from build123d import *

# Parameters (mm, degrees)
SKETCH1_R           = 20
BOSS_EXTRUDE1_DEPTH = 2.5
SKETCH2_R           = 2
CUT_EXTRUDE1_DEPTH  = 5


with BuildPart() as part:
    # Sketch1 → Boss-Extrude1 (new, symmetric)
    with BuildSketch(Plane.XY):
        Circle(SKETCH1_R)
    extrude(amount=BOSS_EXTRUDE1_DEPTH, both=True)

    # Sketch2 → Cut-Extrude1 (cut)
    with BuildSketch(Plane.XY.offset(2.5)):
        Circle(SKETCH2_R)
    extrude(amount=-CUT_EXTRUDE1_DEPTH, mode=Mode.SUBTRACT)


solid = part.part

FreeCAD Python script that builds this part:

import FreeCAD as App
import Part
import Sketcher
from FreeCAD import Vector

doc = App.newDocument("Part")
params = doc.addObject("Spreadsheet::Sheet", "Params")
for row, (alias, value) in enumerate([
    ("sketch1_diameter", "40 mm"),
    ("pad1_length", "5 mm"),
    ("sketch2_diameter", "4 mm"),
    ("pocket1_length", "5 mm"),
], start=1):
    params.set(f"A{row}", alias)
    params.set(f"B{row}", "=" + value)
    params.setAlias(f"B{row}", alias)

body = doc.addObject("PartDesign::Body", "Body")

# Sketch on XY plane
sketch1 = body.newObject("Sketcher::SketchObject", "Sketch")
sketch1.AttachmentSupport = (doc.getObject("XY_Plane"), [""])
sketch1.MapMode = "FlatFace"
sketch1.addGeometry(Part.Circle(Vector(0, 0, 0), Vector(0, 0, 1), 20), False)
sketch1.addConstraint([
    Sketcher.Constraint("Coincident", 0, 3, -1, 1),
    Sketcher.Constraint("Diameter", 0, 40.0),
])
sketch1.setExpression("Constraints[1]", "Params.sketch1_diameter")
pad1 = body.newObject("PartDesign::Pad", "Pad")
pad1.Profile = sketch1
pad1.setExpression("Length", "Params.pad1_length")
pad1.Midplane = True

# Sketch on XY plane
sketch2 = body.newObject("Sketcher::SketchObject", "Sketch001")
sketch2.AttachmentSupport = (doc.getObject("XY_Plane"), [""])
sketch2.MapMode = "FlatFace"
sketch2.AttachmentOffset = App.Placement(Vector(0, 0, 2.5), App.Rotation())
sketch2.addGeometry(Part.Circle(Vector(0, 0, 0), Vector(0, 0, 1), 2), False)
sketch2.addConstraint([
    Sketcher.Constraint("Coincident", 0, 3, -1, 1),
    Sketcher.Constraint("Diameter", 0, 4.0),
])
sketch2.setExpression("Constraints[1]", "Params.sketch2_diameter")
pocket1 = body.newObject("PartDesign::Pocket", "Pocket")
pocket1.Profile = sketch2
pocket1.setExpression("Length", "Params.pocket1_length")

doc.recompute()
